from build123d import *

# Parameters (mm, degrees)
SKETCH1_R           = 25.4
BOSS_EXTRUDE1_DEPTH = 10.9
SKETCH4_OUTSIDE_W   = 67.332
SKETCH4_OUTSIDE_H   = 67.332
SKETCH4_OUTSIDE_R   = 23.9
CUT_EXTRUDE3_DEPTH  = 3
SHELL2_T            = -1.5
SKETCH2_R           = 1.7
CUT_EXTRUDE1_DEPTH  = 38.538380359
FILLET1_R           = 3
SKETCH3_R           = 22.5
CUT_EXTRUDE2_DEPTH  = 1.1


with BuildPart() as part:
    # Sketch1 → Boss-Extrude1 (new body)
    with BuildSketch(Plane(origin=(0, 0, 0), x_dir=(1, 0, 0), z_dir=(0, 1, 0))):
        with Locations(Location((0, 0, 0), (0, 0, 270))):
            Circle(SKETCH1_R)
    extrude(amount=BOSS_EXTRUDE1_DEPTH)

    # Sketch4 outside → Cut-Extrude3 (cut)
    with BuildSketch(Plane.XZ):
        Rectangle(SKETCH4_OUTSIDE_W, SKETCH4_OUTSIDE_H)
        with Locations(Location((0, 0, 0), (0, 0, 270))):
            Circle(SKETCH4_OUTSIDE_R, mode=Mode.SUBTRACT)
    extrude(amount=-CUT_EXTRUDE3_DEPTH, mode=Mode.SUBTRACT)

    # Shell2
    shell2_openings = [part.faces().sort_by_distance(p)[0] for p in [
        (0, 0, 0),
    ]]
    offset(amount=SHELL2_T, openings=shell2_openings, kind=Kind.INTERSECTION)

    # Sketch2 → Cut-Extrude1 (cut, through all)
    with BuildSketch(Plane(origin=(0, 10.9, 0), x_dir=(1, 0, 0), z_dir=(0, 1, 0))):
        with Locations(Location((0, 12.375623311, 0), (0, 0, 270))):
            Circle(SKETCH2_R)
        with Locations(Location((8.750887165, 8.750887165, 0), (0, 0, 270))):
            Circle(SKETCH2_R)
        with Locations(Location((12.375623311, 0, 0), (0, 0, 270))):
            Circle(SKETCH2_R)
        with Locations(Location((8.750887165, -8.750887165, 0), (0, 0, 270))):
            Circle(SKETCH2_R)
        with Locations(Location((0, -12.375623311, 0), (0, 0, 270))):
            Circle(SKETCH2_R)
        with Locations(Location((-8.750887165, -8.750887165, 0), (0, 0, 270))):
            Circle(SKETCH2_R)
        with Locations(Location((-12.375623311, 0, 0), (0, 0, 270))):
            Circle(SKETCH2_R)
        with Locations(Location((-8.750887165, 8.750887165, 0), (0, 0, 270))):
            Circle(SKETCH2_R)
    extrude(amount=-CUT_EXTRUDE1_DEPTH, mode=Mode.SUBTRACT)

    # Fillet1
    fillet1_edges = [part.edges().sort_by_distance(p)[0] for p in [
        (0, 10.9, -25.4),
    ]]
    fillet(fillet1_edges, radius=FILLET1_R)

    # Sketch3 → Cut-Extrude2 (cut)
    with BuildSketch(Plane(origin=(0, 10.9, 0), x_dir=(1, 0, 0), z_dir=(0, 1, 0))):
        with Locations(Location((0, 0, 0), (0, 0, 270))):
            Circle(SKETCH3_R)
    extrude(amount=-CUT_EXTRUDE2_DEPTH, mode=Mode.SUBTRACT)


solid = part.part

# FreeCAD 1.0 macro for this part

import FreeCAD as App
import Part
import Sketcher


def edges_at(feature, points):
    """Names of the edges that pass closest to the given points."""
    edges = feature.Shape.Edges
    near = lambda p: min(range(len(edges)), key=lambda i: edges[i].distToShape(Part.Vertex(*p))[0])
    return sorted({f"Edge{near(p) + 1}" for p in points})


def faces_at(feature, points):
    """Names of the faces that lie closest to the given points."""
    faces = feature.Shape.Faces
    near = lambda p: min(range(len(faces)), key=lambda i: faces[i].distToShape(Part.Vertex(*p))[0])
    return sorted({f"Face{near(p) + 1}" for p in points})

doc = App.newDocument("Part")
body = doc.addObject("PartDesign::Body", "Body")

# Sketch on XZ plane
sketch1 = body.newObject("Sketcher::SketchObject", "Sketch")
sketch1.AttachmentSupport = (doc.getObject("XZ_Plane"), [""])
sketch1.MapMode = "FlatFace"
sketch1.addGeometry(Part.Circle(App.Vector(0, 0, 0), App.Vector(0, 0, 1), 25), False)
sketch1.addConstraint(Sketcher.Constraint("Coincident", 0, 3, -1, 1))
sketch1.addConstraint(Sketcher.Constraint("Diameter", 0, 50.8))
pad1 = body.newObject("PartDesign::Pad", "Pad")
pad1.Profile = sketch1
pad1.Length = 10.9
pad1.Reversed = True

# Sketch on XZ plane
sketch2 = body.newObject("Sketcher::SketchObject", "Sketch001")
sketch2.AttachmentSupport = (doc.getObject("XZ_Plane"), [""])
sketch2.MapMode = "FlatFace"
sketch2.addGeometry(Part.LineSegment(App.Vector(-34, 34, 0), App.Vector(-34, -34, 0)), False)
sketch2.addGeometry(Part.LineSegment(App.Vector(-34, -34, 0), App.Vector(34, -34, 0)), False)
sketch2.addGeometry(Part.LineSegment(App.Vector(34, -34, 0), App.Vector(34, 34, 0)), False)
sketch2.addGeometry(Part.LineSegment(App.Vector(34, 34, 0), App.Vector(-34, 34, 0)), False)
sketch2.addGeometry(Part.Circle(App.Vector(0, 0, 0), App.Vector(0, 0, 1), 24), False)
sketch2.addConstraint(Sketcher.Constraint("Coincident", 0, 2, 1, 1))
sketch2.addConstraint(Sketcher.Constraint("Coincident", 1, 2, 2, 1))
sketch2.addConstraint(Sketcher.Constraint("Coincident", 2, 2, 3, 1))
sketch2.addConstraint(Sketcher.Constraint("Coincident", 3, 2, 0, 1))
sketch2.addConstraint(Sketcher.Constraint("Vertical", 0))
sketch2.addConstraint(Sketcher.Constraint("Horizontal", 1))
sketch2.addConstraint(Sketcher.Constraint("Vertical", 2))
sketch2.addConstraint(Sketcher.Constraint("Horizontal", 3))
sketch2.addConstraint(Sketcher.Constraint("Coincident", 4, 3, -1, 1))
sketch2.addConstraint(Sketcher.Constraint("Symmetric", 0, 2, 2, 2, -1, 1))
sketch2.addConstraint(Sketcher.Constraint("Equal", 3, 0))
sketch2.addConstraint(Sketcher.Constraint("Diameter", 4, 47.8))
sketch2.addConstraint(Sketcher.Constraint("DistanceX", 1, 1, 1, 2, 67.332))
pocket1 = body.newObject("PartDesign::Pocket", "Pocket")
pocket1.Profile = sketch2
pocket1.Length = 3
doc.recompute()

thickness = body.newObject("PartDesign::Thickness", "Thickness")
thickness.Base = (pocket1, faces_at(pocket1, [(0, 0, 0)]))
thickness.Value = 1.5
thickness.Reversed = True
thickness.Join = "Intersection"

# Sketch on XZ plane
sketch3 = body.newObject("Sketcher::SketchObject", "Sketch002")
sketch3.AttachmentSupport = (doc.getObject("XZ_Plane"), [""])
sketch3.MapMode = "FlatFace"
sketch3.AttachmentOffset = App.Placement(App.Vector(0, 0, -10.9), App.Rotation())
sketch3.addGeometry(Part.Circle(App.Vector(0, -12.4, 0), App.Vector(0, 0, 1), 1.7), False)
sketch3.addGeometry(Part.Circle(App.Vector(8.8, -8.8, 0), App.Vector(0, 0, 1), 1.7), False)
sketch3.addGeometry(Part.Circle(App.Vector(12.4, 0, 0), App.Vector(0, 0, 1), 1.7), False)
sketch3.addGeometry(Part.Circle(App.Vector(8.8, 8.8, 0), App.Vector(0, 0, 1), 1.7), False)
sketch3.addGeometry(Part.Circle(App.Vector(0, 12.4, 0), App.Vector(0, 0, 1), 1.7), False)
sketch3.addGeometry(Part.Circle(App.Vector(-8.8, 8.8, 0), App.Vector(0, 0, 1), 1.7), False)
sketch3.addGeometry(Part.Circle(App.Vector(-12.4, 0, 0), App.Vector(0, 0, 1), 1.7), False)
sketch3.addGeometry(Part.Circle(App.Vector(-8.8, -8.8, 0), App.Vector(0, 0, 1), 1.7), False)
sketch3.addConstraint(Sketcher.Constraint("Equal", 0, 1))
sketch3.addConstraint(Sketcher.Constraint("Equal", 1, 2))
sketch3.addConstraint(Sketcher.Constraint("Equal", 2, 3))
sketch3.addConstraint(Sketcher.Constraint("Equal", 3, 4))
sketch3.addConstraint(Sketcher.Constraint("Equal", 4, 5))
sketch3.addConstraint(Sketcher.Constraint("Equal", 5, 6))
sketch3.addConstraint(Sketcher.Constraint("Equal", 6, 7))
sketch3.addConstraint(Sketcher.Constraint("Symmetric", 0, 3, 4, 3, -1, 1))
sketch3.addConstraint(Sketcher.Constraint("Symmetric", 1, 3, 5, 3, -1, 1))
sketch3.addConstraint(Sketcher.Constraint("Symmetric", 2, 3, 6, 3, -1, 1))
sketch3.addConstraint(Sketcher.Constraint("Symmetric", 3, 3, 7, 3, -1, 1))
sketch3.addConstraint(Sketcher.Constraint("Symmetric", 3, 3, 5, 3, -2))
sketch3.addConstraint(Sketcher.Constraint("PointOnObject", 0, 3, -2))
sketch3.addConstraint(Sketcher.Constraint("PointOnObject", 2, 3, -1))
sketch3.addConstraint(Sketcher.Constraint("Diameter", 0, 3.4))
sketch3.addConstraint(Sketcher.Constraint("DistanceY", 0, 3, 3, 3, 21.12651))
sketch3.addConstraint(Sketcher.Constraint("DistanceX", 5, 3, 2, 3, 21.12651))
sketch3.addConstraint(Sketcher.Constraint("DistanceY", 0, 3, -1, 1, 12.375623))
sketch3.addConstraint(Sketcher.Constraint("DistanceX", -1, 1, 1, 3, 8.750887))
pocket2 = body.newObject("PartDesign::Pocket", "Pocket001")
pocket2.Profile = sketch3
pocket2.Type = "ThroughAll"
pocket2.Reversed = True
doc.recompute()

fillet = body.newObject("PartDesign::Fillet", "Fillet")
fillet.Base = (pocket2, edges_at(pocket2, [(0, 10.9, -25.4)]))
fillet.Radius = 3

# Sketch on XZ plane
sketch4 = body.newObject("Sketcher::SketchObject", "Sketch003")
sketch4.AttachmentSupport = (doc.getObject("XZ_Plane"), [""])
sketch4.MapMode = "FlatFace"
sketch4.AttachmentOffset = App.Placement(App.Vector(0, 0, -10.9), App.Rotation())
sketch4.addGeometry(Part.Circle(App.Vector(0, 0, 0), App.Vector(0, 0, 1), 22), False)
sketch4.addConstraint(Sketcher.Constraint("Coincident", 0, 3, -1, 1))
sketch4.addConstraint(Sketcher.Constraint("Diameter", 0, 45.0))
pocket3 = body.newObject("PartDesign::Pocket", "Pocket002")
pocket3.Profile = sketch4
pocket3.Length = 1.1
pocket3.Reversed = True

doc.recompute()
